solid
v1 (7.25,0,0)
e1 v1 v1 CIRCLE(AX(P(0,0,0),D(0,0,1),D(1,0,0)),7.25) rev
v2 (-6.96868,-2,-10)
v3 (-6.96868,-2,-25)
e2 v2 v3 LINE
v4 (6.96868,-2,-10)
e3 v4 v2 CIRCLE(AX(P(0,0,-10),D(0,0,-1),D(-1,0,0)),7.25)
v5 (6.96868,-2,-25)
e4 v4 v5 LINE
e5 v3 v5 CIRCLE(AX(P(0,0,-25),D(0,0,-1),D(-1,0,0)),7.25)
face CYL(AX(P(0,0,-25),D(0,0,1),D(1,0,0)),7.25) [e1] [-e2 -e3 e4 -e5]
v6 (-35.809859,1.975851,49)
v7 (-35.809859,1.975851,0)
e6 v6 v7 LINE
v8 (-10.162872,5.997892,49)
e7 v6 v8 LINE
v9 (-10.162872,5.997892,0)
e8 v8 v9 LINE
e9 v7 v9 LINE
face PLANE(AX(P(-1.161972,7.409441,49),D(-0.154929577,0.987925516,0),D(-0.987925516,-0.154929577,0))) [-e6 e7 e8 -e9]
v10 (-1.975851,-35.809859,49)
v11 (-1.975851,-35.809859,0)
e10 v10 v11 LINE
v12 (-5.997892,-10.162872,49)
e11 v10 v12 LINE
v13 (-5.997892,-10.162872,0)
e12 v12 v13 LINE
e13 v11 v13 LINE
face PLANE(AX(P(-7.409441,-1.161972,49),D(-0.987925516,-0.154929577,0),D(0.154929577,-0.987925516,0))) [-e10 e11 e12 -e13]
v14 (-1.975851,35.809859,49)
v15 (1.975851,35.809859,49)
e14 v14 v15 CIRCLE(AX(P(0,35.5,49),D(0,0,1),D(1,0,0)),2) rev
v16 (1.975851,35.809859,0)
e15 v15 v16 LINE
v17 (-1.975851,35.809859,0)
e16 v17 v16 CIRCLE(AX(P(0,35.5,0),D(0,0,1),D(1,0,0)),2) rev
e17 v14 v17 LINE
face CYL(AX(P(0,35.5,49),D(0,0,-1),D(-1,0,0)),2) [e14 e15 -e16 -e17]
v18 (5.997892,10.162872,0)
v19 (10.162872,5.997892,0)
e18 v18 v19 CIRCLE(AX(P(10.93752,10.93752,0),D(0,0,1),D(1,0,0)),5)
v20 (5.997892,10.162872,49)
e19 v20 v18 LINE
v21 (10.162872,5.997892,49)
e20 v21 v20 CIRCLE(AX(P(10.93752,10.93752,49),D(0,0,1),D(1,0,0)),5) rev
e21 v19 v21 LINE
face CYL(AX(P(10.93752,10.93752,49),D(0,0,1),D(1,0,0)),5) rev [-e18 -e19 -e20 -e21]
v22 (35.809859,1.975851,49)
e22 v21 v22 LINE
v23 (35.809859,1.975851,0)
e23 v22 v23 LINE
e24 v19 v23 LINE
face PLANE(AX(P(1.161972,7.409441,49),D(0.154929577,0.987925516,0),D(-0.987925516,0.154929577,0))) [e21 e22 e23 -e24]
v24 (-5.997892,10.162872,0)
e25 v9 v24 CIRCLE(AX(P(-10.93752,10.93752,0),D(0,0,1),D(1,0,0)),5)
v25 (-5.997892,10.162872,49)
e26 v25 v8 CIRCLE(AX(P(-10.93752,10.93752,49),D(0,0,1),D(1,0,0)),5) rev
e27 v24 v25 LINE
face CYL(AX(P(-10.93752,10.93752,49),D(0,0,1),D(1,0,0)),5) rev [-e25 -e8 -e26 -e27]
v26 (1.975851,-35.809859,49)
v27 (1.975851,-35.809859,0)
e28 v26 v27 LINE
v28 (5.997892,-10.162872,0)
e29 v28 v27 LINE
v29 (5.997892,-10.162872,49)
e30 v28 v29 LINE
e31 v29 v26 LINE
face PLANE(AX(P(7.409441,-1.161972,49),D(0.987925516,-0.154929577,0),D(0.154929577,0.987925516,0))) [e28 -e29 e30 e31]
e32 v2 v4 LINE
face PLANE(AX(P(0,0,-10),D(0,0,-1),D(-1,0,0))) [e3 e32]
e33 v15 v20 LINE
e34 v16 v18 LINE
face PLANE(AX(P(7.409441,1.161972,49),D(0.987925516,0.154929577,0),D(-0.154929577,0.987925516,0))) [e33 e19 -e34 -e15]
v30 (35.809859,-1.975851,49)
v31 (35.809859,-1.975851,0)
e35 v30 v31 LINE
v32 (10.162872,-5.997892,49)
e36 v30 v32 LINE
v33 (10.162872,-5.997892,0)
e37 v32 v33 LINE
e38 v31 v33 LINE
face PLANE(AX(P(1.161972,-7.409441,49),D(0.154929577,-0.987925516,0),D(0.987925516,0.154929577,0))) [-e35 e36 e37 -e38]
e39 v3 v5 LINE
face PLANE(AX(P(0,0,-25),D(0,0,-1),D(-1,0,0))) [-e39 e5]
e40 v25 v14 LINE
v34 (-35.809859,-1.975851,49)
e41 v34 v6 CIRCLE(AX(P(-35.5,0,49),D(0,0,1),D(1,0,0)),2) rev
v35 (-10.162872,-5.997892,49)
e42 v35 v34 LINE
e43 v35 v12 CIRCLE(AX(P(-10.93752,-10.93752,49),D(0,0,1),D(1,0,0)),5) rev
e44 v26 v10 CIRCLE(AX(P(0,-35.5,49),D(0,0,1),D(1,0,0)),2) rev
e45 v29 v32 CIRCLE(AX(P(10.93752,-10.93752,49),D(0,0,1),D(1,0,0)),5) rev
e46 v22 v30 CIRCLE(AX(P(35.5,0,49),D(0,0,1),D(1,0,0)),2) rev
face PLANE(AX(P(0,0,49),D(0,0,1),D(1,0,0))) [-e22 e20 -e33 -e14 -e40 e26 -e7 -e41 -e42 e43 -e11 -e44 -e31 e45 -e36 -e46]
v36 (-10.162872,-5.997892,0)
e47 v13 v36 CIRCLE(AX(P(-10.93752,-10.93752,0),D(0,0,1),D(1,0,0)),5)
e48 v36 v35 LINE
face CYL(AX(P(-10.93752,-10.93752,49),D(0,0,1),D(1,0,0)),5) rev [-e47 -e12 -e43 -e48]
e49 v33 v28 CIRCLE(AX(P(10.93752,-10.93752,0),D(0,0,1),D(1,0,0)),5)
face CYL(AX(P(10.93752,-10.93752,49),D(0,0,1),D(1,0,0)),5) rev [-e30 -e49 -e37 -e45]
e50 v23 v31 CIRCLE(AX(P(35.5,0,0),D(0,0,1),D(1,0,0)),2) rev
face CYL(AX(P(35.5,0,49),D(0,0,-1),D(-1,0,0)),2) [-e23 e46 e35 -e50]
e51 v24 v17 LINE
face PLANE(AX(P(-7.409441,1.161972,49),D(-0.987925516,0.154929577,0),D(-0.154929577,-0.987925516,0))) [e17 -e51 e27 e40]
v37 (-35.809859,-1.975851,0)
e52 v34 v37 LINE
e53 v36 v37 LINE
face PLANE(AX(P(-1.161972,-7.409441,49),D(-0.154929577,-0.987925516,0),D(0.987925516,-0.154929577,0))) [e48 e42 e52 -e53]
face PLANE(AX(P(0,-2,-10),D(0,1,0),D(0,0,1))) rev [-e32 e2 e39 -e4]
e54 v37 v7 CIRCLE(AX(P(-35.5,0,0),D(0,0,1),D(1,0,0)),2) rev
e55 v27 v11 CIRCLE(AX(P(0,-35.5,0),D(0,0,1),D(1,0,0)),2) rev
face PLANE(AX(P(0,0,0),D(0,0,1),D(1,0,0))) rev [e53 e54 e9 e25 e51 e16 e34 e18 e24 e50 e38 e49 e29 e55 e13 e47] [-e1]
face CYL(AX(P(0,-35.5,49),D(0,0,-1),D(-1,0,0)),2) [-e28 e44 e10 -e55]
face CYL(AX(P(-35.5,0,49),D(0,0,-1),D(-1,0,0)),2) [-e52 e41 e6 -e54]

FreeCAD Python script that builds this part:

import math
import FreeCAD as App
import Part
import Sketcher

V = App.Vector
Q = App.Units.Quantity


def edges_at(feature, points):
    """Names of the edges that pass closest to the given points."""
    edges = feature.Shape.Edges
    near = lambda p: min(range(len(edges)), key=lambda i: edges[i].distToShape(Part.Vertex(*p))[0])
    return sorted({f"Edge{near(p) + 1}" for p in points})

doc = App.newDocument("Part")
params = doc.addObject("Spreadsheet::Sheet", "Params")
for row, (alias, value) in enumerate([
    ("sketch1_radius", "2 mm"),
    ("pad1_length", "49 mm"),
    ("fillet_radius", "5 mm"),
    ("sketch2_diameter", "14.5 mm"),
    ("pad2_length", "25 mm"),
    ("sketch3_radius", "7.25 mm"),
    ("pocket1_length", "15 mm"),
], start=1):
    params.set(f"A{row}", alias)
    params.set(f"B{row}", "=" + value)
    params.setAlias(f"B{row}", alias)

body = doc.addObject("PartDesign::Body", "Body")

# Sketch on XY plane
sketch1 = doc.addObject("Sketcher::SketchObject", "Sketch")
body.addObject(sketch1)
sketch1.AttachmentSupport = (doc.XY_Plane, [""])
sketch1.MapMode = "FlatFace"
sketch1.addGeometry([
    Part.LineSegment(V(-2, 35.8, 0), V(-6.6, 6.6, 0)),  # 0
    Part.LineSegment(V(-6.6, 6.6, 0), V(-35.8, 2, 0)),  # 1
    Part.ArcOfCircle(Part.Circle(V(-35.5, 0, 0), V(0, 0, 1), 2), math.radians(99), math.radians(261)),  # 2
    Part.LineSegment(V(-35.8, -2, 0), V(-6.6, -6.6, 0)),  # 3
    Part.LineSegment(V(-6.6, -6.6, 0), V(-2, -35.8, 0)),  # 4
    Part.ArcOfCircle(Part.Circle(V(0, -35.5, 0), V(0, 0, 1), 2), math.radians(-171), math.radians(-9)),  # 5
    Part.LineSegment(V(2, -35.8, 0), V(6.6, -6.6, 0)),  # 6
    Part.LineSegment(V(6.6, -6.6, 0), V(35.8, -2, 0)),  # 7
    Part.ArcOfCircle(Part.Circle(V(35.5, 0, 0), V(0, 0, 1), 2), math.radians(-81), math.radians(81)),  # 8
    Part.LineSegment(V(35.8, 2, 0), V(6.6, 6.6, 0)),  # 9
    Part.LineSegment(V(6.6, 6.6, 0), V(2, 35.8, 0)),  # 10
    Part.ArcOfCircle(Part.Circle(V(0, 35.5, 0), V(0, 0, 1), 2), math.radians(9), math.radians(171)),  # 11
], False)
sketch1.addConstraint([
    Sketcher.Constraint("Coincident", 0, 2, 1, 1),
    Sketcher.Constraint("Tangent", 1, 2, 2, 1),
    Sketcher.Constraint("Tangent", 2, 2, 3, 1),
    Sketcher.Constraint("Coincident", 3, 2, 4, 1),
    Sketcher.Constraint("Tangent", 4, 2, 5, 1),
    Sketcher.Constraint("Tangent", 5, 2, 6, 1),
    Sketcher.Constraint("Coincident", 6, 2, 7, 1),
    Sketcher.Constraint("Tangent", 7, 2, 8, 1),
    Sketcher.Constraint("Tangent", 8, 2, 9, 1),
    Sketcher.Constraint("Coincident", 9, 2, 10, 1),
    Sketcher.Constraint("Tangent", 10, 2, 11, 1),
    Sketcher.Constraint("Tangent", 11, 2, 0, 1),
    Sketcher.Constraint("Equal", 2, 5),
    Sketcher.Constraint("Equal", 5, 8),
    Sketcher.Constraint("Equal", 8, 11),
    Sketcher.Constraint("Symmetric", 2, 3, 8, 3, -1, 1),
    Sketcher.Constraint("Symmetric", 5, 3, 11, 3, -1, 1),
    Sketcher.Constraint("Symmetric", 0, 2, 6, 2, -1, 1),
    Sketcher.Constraint("Symmetric", 3, 2, 9, 2, -1, 1),
    Sketcher.Constraint("Symmetric", 4, 2, 5, 2, -2),
    Sketcher.Constraint("Symmetric", 2, 2, 7, 2, -2),
    Sketcher.Constraint("Perpendicular", 0, 3),
    Sketcher.Constraint("Equal", 0, 1),
    Sketcher.Constraint("Radius", 2, Q("2 mm")),
    Sketcher.Constraint("DistanceX", 2, 3, 8, 3, Q("71 mm")),
    Sketcher.Constraint("Distance", 0, Q("29.60481 mm")),
])
sketch1.setExpression("Constraints[23]", "Params.sketch1_radius")
pad1 = doc.addObject("PartDesign::Pad", "Pad")
body.addObject(pad1)
pad1.Profile = sketch1
pad1.setExpression("Length", "Params.pad1_length")
doc.recompute()

fillet = doc.addObject("PartDesign::Fillet", "Fillet")
body.addObject(fillet)
fillet.Base = (pad1, edges_at(pad1, [
    (-6.563, 6.563, 24.5),
    (6.563, 6.563, 24.5),
    (6.563, -6.563, 24.5),
    (-6.563, -6.563, 24.5),
]))
fillet.setExpression("Radius", "Params.fillet_radius")

# Sketch on XY plane
sketch2 = doc.addObject("Sketcher::SketchObject", "Sketch001")
body.addObject(sketch2)
sketch2.AttachmentSupport = (doc.XY_Plane, [""])
sketch2.MapMode = "FlatFace"
sketch2.addGeometry(Part.Circle(V(0, 0, 0), V(0, 0, 1), 7), False)
sketch2.addConstraint([
    Sketcher.Constraint("Coincident", 0, 3, -1, 1),
    Sketcher.Constraint("Diameter", 0, Q("14.5 mm")),
])
sketch2.setExpression("Constraints[1]", "Params.sketch2_diameter")
pad2 = doc.addObject("PartDesign::Pad", "Pad001")
body.addObject(pad2)
pad2.Profile = sketch2
pad2.setExpression("Length", "Params.pad2_length")
pad2.Reversed = True

# Sketch on XY plane
sketch3 = doc.addObject("Sketcher::SketchObject", "Sketch002")
body.addObject(sketch3)
sketch3.AttachmentSupport = (doc.XY_Plane, [""])
sketch3.MapMode = "FlatFace"
sketch3.AttachmentOffset = App.Placement(V(0, 0, -10), App.Rotation())
sketch3.addGeometry([
    Part.LineSegment(V(-7, -2, 0), V(7, -2, 0)),
    Part.ArcOfCircle(Part.Circle(V(0, 0, 0), V(0, 0, 1), 7), math.radians(-164), math.radians(-16)),
], False)
sketch3.addConstraint([
    Sketcher.Constraint("Coincident", 0, 1, 1, 1),
    Sketcher.Constraint("Coincident", 1, 2, 0, 2),
    Sketcher.Constraint("Horizontal", 0),
    Sketcher.Constraint("Coincident", 1, 3, -1, 1),
    Sketcher.Constraint("Radius", 1, Q("7.25 mm")),
    Sketcher.Constraint("DistanceY", 0, 1, -1, 1, Q("2 mm")),
])
sketch3.setExpression("Constraints[4]", "Params.sketch3_radius")
pocket1 = doc.addObject("PartDesign::Pocket", "Pocket")
body.addObject(pocket1)
pocket1.Profile = sketch3
pocket1.setExpression("Length", "Params.pocket1_length")

doc.recompute()
